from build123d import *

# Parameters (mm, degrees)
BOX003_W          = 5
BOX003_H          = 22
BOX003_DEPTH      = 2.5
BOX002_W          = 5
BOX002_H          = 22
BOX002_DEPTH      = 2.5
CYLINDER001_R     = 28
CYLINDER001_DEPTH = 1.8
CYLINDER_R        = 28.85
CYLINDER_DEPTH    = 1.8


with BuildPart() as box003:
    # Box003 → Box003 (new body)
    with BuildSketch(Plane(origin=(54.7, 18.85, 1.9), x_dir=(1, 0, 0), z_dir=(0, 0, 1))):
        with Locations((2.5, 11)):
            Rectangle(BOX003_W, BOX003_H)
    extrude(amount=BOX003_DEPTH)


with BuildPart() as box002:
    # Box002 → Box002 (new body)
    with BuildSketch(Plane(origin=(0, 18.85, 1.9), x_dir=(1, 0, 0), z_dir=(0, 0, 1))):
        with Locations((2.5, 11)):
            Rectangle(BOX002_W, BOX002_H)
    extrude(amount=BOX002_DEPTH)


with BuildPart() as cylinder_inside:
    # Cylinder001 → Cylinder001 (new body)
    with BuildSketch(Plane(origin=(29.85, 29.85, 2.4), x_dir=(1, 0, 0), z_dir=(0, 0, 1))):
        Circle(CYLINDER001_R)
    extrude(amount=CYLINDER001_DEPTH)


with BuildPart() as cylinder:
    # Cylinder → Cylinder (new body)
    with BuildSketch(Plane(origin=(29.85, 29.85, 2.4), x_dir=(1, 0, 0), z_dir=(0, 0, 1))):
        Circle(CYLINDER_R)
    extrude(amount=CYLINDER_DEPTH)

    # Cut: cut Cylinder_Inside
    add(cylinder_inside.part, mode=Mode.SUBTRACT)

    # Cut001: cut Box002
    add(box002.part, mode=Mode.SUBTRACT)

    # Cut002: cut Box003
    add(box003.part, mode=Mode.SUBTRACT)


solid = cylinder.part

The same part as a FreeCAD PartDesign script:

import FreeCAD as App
import Part
import Sketcher
from FreeCAD import Vector
Q = App.Units.Quantity


def add_polygon(sketch, points):
    """Adds a closed chain of lines whose ends are joined by coincident constraints."""
    first, n = sketch.GeometryCount, len(points)
    for a, b in zip(points, points[1:] + points[:1]):
        sketch.addGeometry(Part.LineSegment(App.Vector(*a, 0), App.Vector(*b, 0)), False)
    for i in range(n):
        sketch.addConstraint(Sketcher.Constraint("Coincident", first + i, 2, first + (i + 1) % n, 1))

doc = App.newDocument("Part")
body = doc.addObject("PartDesign::Body", "Body")

# Sketch on XY plane
sketch1 = doc.addObject("Sketcher::SketchObject", "Sketch")
body.addObject(sketch1)
sketch1.AttachmentSupport = (doc.XY_Plane, [""])
sketch1.MapMode = "FlatFace"
sketch1.AttachmentOffset = App.Placement(Vector(0, 0, 1.9), App.Rotation())
add_polygon(sketch1, [(55, 41), (55, 19), (60, 19), (60, 41)])  # lines 0-3
sketch1.addConstraint([
    Sketcher.Constraint("Vertical", 0),
    Sketcher.Constraint("Horizontal", 1),
    Sketcher.Constraint("Vertical", 2),
    Sketcher.Constraint("Horizontal", 3),
    Sketcher.Constraint("DistanceX", 1, 1, 1, 2, Q("5 mm")),
    Sketcher.Constraint("DistanceY", 0, 2, 0, 1, Q("22 mm")),
    Sketcher.Constraint("DistanceX", -1, 1, 0, 2, Q("54.7 mm")),
    Sketcher.Constraint("DistanceY", -1, 1, 0, 2, Q("18.85 mm")),
])
pad1 = doc.addObject("PartDesign::Pad", "Pad")
body.addObject(pad1)
pad1.Profile = sketch1
pad1.Length = 2.5
body2 = doc.addObject("PartDesign::Body", "Body001")

# Sketch on XY plane
sketch2 = doc.addObject("Sketcher::SketchObject", "Sketch001")
body2.addObject(sketch2)
sketch2.AttachmentSupport = (doc.getObject("XY_Plane001"), [""])
sketch2.MapMode = "FlatFace"
sketch2.AttachmentOffset = App.Placement(Vector(0, 0, 1.9), App.Rotation())
add_polygon(sketch2, [(0, 41), (0, 19), (5, 19), (5, 41)])  # lines 0-3
sketch2.addConstraint([
    Sketcher.Constraint("Vertical", 0),
    Sketcher.Constraint("Horizontal", 1),
    Sketcher.Constraint("Vertical", 2),
    Sketcher.Constraint("Horizontal", 3),
    Sketcher.Constraint("PointOnObject", 0, 2, -2),
    Sketcher.Constraint("DistanceX", 1, 1, 1, 2, Q("5 mm")),
    Sketcher.Constraint("DistanceY", 0, 2, 0, 1, Q("22 mm")),
    Sketcher.Constraint("DistanceY", -1, 1, 0, 2, Q("18.85 mm")),
])
pad2 = doc.addObject("PartDesign::Pad", "Pad001")
body2.addObject(pad2)
pad2.Profile = sketch2
pad2.Length = 2.5
body3 = doc.addObject("PartDesign::Body", "Body002")

# Sketch on XY plane
sketch3 = doc.addObject("Sketcher::SketchObject", "Sketch002")
body3.addObject(sketch3)
sketch3.AttachmentSupport = (doc.getObject("XY_Plane002"), [""])
sketch3.MapMode = "FlatFace"
sketch3.AttachmentOffset = App.Placement(Vector(0, 0, 2.4), App.Rotation())
sketch3.addGeometry(Part.Circle(Vector(30, 30, 0), Vector(0, 0, 1), 28), False)
sketch3.addConstraint([
    Sketcher.Constraint("Diameter", 0, Q("56 mm")),
    Sketcher.Constraint("DistanceX", -1, 1, 0, 3, Q("29.85 mm")),
    Sketcher.Constraint("DistanceY", -1, 1, 0, 3, Q("29.85 mm")),
])
pad3 = doc.addObject("PartDesign::Pad", "Pad002")
body3.addObject(pad3)
pad3.Profile = sketch3
pad3.Length = 1.8
body4 = doc.addObject("PartDesign::Body", "Body003")
body4.AllowCompound = True

# Sketch on XY plane
sketch4 = doc.addObject("Sketcher::SketchObject", "Sketch003")
body4.addObject(sketch4)
sketch4.AttachmentSupport = (doc.getObject("XY_Plane003"), [""])
sketch4.MapMode = "FlatFace"
sketch4.AttachmentOffset = App.Placement(Vector(0, 0, 2.4), App.Rotation())
sketch4.addGeometry(Part.Circle(Vector(30, 30, 0), Vector(0, 0, 1), 29), False)
sketch4.addConstraint([
    Sketcher.Constraint("Diameter", 0, Q("57.7 mm")),
    Sketcher.Constraint("DistanceX", -1, 1, 0, 3, Q("29.85 mm")),
    Sketcher.Constraint("DistanceY", -1, 1, 0, 3, Q("29.85 mm")),
])
pad4 = doc.addObject("PartDesign::Pad", "Pad003")
body4.addObject(pad4)
pad4.Profile = sketch4
pad4.Length = 1.8
doc.recompute()

boolean = doc.addObject("PartDesign::Boolean", "Boolean")
body4.addObject(boolean)
boolean.Type = "Cut"
boolean.addObjects([body3])
doc.recompute()

boolean2 = doc.addObject("PartDesign::Boolean", "Boolean001")
body4.addObject(boolean2)
boolean2.Type = "Cut"
boolean2.addObjects([body2])
doc.recompute()

boolean3 = doc.addObject("PartDesign::Boolean", "Boolean002")
body4.addObject(boolean3)
boolean3.Type = "Cut"
boolean3.addObjects([body])

doc.recompute()
